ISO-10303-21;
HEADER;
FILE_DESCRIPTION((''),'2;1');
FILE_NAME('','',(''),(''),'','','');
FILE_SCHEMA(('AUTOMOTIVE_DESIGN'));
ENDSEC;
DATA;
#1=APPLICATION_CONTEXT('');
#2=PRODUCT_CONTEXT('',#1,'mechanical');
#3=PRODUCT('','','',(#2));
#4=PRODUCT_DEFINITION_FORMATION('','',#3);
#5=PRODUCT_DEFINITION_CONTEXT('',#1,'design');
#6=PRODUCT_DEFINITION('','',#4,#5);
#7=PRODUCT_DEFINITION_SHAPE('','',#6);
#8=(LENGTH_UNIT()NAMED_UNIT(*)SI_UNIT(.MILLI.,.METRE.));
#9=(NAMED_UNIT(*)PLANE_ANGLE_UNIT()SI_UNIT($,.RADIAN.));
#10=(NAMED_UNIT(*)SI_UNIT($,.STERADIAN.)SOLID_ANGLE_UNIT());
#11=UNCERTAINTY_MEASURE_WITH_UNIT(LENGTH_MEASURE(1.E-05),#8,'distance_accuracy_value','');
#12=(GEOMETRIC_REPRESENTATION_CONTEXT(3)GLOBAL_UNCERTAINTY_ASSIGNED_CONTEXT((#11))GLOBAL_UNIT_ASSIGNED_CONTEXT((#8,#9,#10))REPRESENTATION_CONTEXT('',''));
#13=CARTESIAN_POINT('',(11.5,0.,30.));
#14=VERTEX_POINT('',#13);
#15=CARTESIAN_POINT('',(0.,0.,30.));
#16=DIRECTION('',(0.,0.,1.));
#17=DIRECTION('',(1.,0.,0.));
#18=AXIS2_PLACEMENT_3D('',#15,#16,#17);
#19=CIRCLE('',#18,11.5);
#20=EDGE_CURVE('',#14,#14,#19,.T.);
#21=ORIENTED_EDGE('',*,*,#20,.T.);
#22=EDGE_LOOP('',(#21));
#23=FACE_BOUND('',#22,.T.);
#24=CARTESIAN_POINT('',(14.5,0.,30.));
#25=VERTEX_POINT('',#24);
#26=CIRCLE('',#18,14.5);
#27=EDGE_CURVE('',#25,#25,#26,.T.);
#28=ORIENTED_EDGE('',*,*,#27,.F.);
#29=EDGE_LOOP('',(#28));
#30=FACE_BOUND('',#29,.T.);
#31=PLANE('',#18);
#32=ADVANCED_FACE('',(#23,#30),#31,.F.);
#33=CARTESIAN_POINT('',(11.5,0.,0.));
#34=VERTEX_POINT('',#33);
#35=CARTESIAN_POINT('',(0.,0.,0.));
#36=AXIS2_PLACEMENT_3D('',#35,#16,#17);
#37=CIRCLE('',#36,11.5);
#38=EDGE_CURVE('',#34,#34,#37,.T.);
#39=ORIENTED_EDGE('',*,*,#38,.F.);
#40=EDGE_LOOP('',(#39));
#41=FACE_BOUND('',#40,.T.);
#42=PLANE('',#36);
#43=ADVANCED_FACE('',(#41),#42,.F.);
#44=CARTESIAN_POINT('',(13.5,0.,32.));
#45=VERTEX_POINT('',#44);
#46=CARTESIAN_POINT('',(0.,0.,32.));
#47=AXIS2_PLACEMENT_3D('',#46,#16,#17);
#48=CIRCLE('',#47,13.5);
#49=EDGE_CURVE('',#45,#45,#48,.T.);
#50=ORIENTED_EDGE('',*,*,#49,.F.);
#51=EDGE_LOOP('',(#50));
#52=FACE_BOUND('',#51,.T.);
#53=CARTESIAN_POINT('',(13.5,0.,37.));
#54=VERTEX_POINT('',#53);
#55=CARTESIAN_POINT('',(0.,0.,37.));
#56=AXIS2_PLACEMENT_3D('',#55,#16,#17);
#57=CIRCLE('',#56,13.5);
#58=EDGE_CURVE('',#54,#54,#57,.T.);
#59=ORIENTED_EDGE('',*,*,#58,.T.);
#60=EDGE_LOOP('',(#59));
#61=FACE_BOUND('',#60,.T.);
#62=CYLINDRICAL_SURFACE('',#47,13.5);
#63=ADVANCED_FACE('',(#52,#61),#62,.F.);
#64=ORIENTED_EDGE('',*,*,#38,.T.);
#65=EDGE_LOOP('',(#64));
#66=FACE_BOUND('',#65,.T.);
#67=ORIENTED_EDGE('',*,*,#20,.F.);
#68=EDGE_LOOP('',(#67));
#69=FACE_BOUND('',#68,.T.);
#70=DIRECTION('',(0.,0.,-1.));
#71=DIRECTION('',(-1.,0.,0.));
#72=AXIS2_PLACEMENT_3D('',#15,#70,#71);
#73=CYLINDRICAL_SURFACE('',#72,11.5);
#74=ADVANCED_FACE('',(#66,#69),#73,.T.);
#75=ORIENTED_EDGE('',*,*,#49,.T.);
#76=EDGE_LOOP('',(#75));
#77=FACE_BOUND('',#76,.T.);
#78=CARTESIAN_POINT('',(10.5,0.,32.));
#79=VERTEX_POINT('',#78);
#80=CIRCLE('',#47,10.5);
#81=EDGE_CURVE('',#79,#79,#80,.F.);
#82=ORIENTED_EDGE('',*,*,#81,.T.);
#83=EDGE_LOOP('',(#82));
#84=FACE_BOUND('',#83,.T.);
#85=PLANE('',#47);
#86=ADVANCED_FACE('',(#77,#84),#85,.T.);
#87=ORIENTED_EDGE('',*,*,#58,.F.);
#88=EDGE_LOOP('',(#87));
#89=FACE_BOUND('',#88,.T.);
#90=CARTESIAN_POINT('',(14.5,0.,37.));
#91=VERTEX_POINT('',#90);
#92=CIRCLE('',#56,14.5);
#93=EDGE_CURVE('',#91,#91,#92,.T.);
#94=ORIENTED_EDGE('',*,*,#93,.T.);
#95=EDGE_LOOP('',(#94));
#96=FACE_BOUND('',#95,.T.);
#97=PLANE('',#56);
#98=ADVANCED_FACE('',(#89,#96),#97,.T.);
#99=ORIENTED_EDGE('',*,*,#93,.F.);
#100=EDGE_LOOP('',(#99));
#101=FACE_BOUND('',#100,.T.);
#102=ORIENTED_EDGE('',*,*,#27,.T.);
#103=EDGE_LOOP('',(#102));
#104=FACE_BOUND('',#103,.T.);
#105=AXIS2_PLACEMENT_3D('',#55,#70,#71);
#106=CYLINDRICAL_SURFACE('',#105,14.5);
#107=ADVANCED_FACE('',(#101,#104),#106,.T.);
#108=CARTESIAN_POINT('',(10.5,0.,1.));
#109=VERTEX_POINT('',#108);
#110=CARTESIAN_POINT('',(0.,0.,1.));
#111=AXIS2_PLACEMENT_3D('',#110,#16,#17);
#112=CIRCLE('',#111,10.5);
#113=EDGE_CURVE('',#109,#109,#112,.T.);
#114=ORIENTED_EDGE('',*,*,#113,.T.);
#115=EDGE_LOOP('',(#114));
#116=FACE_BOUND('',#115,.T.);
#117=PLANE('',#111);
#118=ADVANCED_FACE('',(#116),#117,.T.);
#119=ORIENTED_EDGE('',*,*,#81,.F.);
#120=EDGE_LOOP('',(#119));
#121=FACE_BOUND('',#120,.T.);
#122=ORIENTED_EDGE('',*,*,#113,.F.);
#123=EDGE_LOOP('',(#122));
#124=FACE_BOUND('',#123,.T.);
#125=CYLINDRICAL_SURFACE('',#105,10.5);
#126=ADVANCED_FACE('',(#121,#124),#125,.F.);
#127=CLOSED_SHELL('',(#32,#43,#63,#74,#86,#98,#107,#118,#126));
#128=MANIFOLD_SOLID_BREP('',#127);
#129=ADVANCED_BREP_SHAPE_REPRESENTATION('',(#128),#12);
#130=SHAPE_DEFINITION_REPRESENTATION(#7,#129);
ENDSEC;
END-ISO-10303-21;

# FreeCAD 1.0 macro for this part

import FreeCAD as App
import Part
import Sketcher

V = App.Vector

doc = App.newDocument("Part")
params = doc.addObject("Spreadsheet::Sheet", "Params")
for row, (alias, value) in enumerate([
    ("sketch1_diameter", "23 mm"),
    ("pad1_length", "30 mm"),
    ("sketch2_diameter", "29 mm"),
    ("pad2_length", "7 mm"),
    ("sketch3_diameter", "27 mm"),
    ("pocket1_length", "5 mm"),
    ("sketch4_diameter", "21 mm"),
], start=1):
    params.set(f"A{row}", alias)
    params.set(f"B{row}", "=" + value)
    params.setAlias(f"B{row}", alias)

body = doc.addObject("PartDesign::Body", "Body")

# Sketch on XY plane
sketch1 = body.newObject("Sketcher::SketchObject", "Sketch")
sketch1.AttachmentSupport = (doc.getObject("XY_Plane"), [""])
sketch1.MapMode = "FlatFace"
sketch1.addGeometry(Part.Circle(V(0, 0, 0), V(0, 0, 1), 11.5), False)
sketch1.addConstraint([
    Sketcher.Constraint("Coincident", 0, 3, -1, 1),
    Sketcher.Constraint("Diameter", 0, 23.0),
])
sketch1.setExpression("Constraints[1]", "Params.sketch1_diameter")
pad1 = body.newObject("PartDesign::Pad", "Pad")
pad1.Profile = sketch1
pad1.setExpression("Length", "Params.pad1_length")

# Sketch on XY plane
sketch2 = body.newObject("Sketcher::SketchObject", "Sketch001")
sketch2.AttachmentSupport = (doc.getObject("XY_Plane"), [""])
sketch2.MapMode = "FlatFace"
sketch2.AttachmentOffset = App.Placement(V(0, 0, 30), App.Rotation())
sketch2.addGeometry(Part.Circle(V(0, 0, 0), V(0, 0, 1), 14.5), False)
sketch2.addConstraint([
    Sketcher.Constraint("Coincident", 0, 3, -1, 1),
    Sketcher.Constraint("Diameter", 0, 29.0),
])
sketch2.setExpression("Constraints[1]", "Params.sketch2_diameter")
pad2 = body.newObject("PartDesign::Pad", "Pad001")
pad2.Profile = sketch2
pad2.setExpression("Length", "Params.pad2_length")

# Sketch on XY plane
sketch3 = body.newObject("Sketcher::SketchObject", "Sketch002")
sketch3.AttachmentSupport = (doc.getObject("XY_Plane"), [""])
sketch3.MapMode = "FlatFace"
sketch3.AttachmentOffset = App.Placement(V(0, 0, 37), App.Rotation())
sketch3.addGeometry(Part.Circle(V(0, 0, 0), V(0, 0, 1), 13.5), False)
sketch3.addConstraint([
    Sketcher.Constraint("Coincident", 0, 3, -1, 1),
    Sketcher.Constraint("Diameter", 0, 27.0),
])
sketch3.setExpression("Constraints[1]", "Params.sketch3_diameter")
pocket1 = body.newObject("PartDesign::Pocket", "Pocket")
pocket1.Profile = sketch3
pocket1.setExpression("Length", "Params.pocket1_length")

# Sketch on XY plane
sketch4 = body.newObject("Sketcher::SketchObject", "Sketch003")
sketch4.AttachmentSupport = (doc.getObject("XY_Plane"), [""])
sketch4.MapMode = "FlatFace"
sketch4.AttachmentOffset = App.Placement(V(0, 0, 1), App.Rotation())
sketch4.addGeometry(Part.Circle(V(0, 0, 0), V(0, 0, 1), 10.5), False)
sketch4.addConstraint([
    Sketcher.Constraint("Coincident", 0, 3, -1, 1),
    Sketcher.Constraint("Diameter", 0, 21.0),
])
sketch4.setExpression("Constraints[1]", "Params.sketch4_diameter")
pocket2 = body.newObject("PartDesign::Pocket", "Pocket001")
pocket2.Profile = sketch4
pocket2.Type = "ThroughAll"
pocket2.Reversed = True

doc.recompute()
